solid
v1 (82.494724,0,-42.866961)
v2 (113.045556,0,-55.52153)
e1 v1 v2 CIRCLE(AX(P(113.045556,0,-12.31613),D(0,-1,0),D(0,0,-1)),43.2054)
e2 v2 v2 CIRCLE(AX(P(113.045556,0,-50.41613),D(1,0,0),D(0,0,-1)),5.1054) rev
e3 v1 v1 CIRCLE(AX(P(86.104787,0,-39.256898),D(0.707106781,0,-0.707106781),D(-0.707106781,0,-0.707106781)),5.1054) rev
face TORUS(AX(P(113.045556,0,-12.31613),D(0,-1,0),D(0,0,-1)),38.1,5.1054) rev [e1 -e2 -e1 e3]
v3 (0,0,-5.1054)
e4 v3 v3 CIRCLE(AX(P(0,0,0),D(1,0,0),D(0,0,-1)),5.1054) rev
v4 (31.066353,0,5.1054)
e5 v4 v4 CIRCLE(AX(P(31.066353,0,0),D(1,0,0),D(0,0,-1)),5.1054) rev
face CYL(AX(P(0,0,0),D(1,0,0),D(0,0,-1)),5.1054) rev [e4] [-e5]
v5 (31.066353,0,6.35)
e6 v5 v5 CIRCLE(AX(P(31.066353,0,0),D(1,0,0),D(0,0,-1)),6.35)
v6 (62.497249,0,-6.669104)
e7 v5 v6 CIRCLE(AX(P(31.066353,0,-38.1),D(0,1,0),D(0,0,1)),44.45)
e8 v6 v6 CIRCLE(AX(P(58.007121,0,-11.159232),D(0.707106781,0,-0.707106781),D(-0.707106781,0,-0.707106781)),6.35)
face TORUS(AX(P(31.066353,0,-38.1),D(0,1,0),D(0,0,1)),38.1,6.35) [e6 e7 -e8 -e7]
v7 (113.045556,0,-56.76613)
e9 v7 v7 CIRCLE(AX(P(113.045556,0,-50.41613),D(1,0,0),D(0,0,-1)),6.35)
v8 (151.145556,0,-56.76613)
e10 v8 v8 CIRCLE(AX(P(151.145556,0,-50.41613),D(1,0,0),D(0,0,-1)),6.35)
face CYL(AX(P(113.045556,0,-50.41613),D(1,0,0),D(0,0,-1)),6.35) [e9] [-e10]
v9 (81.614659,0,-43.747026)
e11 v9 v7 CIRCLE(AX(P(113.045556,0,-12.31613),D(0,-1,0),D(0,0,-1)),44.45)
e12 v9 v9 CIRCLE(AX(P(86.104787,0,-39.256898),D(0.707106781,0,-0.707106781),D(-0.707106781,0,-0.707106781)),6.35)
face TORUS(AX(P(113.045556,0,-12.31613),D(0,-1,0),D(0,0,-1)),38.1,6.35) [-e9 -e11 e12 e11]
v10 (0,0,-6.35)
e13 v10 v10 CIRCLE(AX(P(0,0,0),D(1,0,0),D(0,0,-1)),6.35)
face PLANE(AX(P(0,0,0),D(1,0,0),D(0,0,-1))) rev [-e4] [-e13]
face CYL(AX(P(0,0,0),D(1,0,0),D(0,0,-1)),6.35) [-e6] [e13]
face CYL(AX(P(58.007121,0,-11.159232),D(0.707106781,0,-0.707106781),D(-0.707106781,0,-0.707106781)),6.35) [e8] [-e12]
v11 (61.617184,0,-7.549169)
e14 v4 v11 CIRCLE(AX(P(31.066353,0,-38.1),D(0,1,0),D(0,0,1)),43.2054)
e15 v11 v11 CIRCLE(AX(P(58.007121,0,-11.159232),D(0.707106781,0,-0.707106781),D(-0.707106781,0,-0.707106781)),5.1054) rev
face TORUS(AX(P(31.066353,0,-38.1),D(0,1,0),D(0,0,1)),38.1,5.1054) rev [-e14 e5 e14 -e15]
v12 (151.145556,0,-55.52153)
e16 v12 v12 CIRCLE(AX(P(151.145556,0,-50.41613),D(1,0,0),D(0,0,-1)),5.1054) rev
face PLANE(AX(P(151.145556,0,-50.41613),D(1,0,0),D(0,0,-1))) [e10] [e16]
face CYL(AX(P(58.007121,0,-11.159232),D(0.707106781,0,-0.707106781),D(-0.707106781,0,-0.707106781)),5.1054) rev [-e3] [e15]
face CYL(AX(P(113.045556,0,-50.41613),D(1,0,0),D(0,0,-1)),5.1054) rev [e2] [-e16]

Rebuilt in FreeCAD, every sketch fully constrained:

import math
import FreeCAD as App
import Part
import Sketcher
from FreeCAD import Vector
Q = App.Units.Quantity

doc = App.newDocument("Part")
body = doc.addObject("PartDesign::Body", "Body")

sketch1 = body.newObject("Sketcher::SketchObject", "Sketch")
sketch1.AttachmentSupport = (doc.getObject("YZ_Plane"), [""])
sketch1.MapMode = "FlatFace"
sketch1.addGeometry([
    Part.Circle(Vector(0, 0, 0), Vector(0, 0, 1), 6),
    Part.Circle(Vector(0, 0, 0), Vector(0, 0, 1), 5),
], False)
sketch1.addConstraint([
    Sketcher.Constraint("Coincident", 0, 3, -1, 1),
    Sketcher.Constraint("Coincident", 1, 3, -1, 1),
    Sketcher.Constraint("Diameter", 0, Q("0.5 in")),
    Sketcher.Constraint("Diameter", 1, Q("0.402 in")),
])

sketch2 = body.newObject("Sketcher::SketchObject", "Sketch001")
sketch2.AttachmentSupport = (doc.getObject("XZ_Plane"), [""])
sketch2.MapMode = "FlatFace"
sketch2.addGeometry([
    Part.LineSegment(Vector(0, 0, 0), Vector(31, 0, 0)),
    Part.ArcOfCircle(Part.Circle(Vector(31, -38, 0), Vector(0, 0, 1), 38), math.radians(45), math.radians(90)),
    Part.LineSegment(Vector(58, -11, 0), Vector(86, -39, 0)),
    Part.ArcOfCircle(Part.Circle(Vector(113, -12, 0), Vector(0, 0, 1), 38), math.radians(-135), math.radians(-90)),
    Part.LineSegment(Vector(113, -50, 0), Vector(151, -50, 0)),
], False)
sketch2.addConstraint([
    Sketcher.Constraint("Tangent", 0, 2, 1, 2),
    Sketcher.Constraint("Tangent", 1, 1, 2, 1),
    Sketcher.Constraint("Tangent", 2, 2, 3, 1),
    Sketcher.Constraint("Tangent", 3, 2, 4, 1),
    Sketcher.Constraint("Horizontal", 0),
    Sketcher.Constraint("Horizontal", 4),
    Sketcher.Constraint("Coincident", 0, 1, -1, 1),
    Sketcher.Constraint("Equal", 1, 3),
    Sketcher.Constraint("Radius", 1, Q("1.5 in")),
    Sketcher.Constraint("DistanceX", 4, 1, 4, 2, Q("1.5 in")),
    Sketcher.Constraint("Angle", 2, Q("-45 deg")),
    Sketcher.Constraint("Distance", 2, 39.736101),
    Sketcher.Constraint("DistanceX", 0, 1, 0, 2, 31.066353),
])
doc.recompute()

additivepipe = body.newObject("PartDesign::AdditivePipe", "AdditivePipe")
additivepipe.Profile = sketch1
additivepipe.Spine = (sketch2, ["Edge1", "Edge2", "Edge3", "Edge4", "Edge5"])

doc.recompute()
